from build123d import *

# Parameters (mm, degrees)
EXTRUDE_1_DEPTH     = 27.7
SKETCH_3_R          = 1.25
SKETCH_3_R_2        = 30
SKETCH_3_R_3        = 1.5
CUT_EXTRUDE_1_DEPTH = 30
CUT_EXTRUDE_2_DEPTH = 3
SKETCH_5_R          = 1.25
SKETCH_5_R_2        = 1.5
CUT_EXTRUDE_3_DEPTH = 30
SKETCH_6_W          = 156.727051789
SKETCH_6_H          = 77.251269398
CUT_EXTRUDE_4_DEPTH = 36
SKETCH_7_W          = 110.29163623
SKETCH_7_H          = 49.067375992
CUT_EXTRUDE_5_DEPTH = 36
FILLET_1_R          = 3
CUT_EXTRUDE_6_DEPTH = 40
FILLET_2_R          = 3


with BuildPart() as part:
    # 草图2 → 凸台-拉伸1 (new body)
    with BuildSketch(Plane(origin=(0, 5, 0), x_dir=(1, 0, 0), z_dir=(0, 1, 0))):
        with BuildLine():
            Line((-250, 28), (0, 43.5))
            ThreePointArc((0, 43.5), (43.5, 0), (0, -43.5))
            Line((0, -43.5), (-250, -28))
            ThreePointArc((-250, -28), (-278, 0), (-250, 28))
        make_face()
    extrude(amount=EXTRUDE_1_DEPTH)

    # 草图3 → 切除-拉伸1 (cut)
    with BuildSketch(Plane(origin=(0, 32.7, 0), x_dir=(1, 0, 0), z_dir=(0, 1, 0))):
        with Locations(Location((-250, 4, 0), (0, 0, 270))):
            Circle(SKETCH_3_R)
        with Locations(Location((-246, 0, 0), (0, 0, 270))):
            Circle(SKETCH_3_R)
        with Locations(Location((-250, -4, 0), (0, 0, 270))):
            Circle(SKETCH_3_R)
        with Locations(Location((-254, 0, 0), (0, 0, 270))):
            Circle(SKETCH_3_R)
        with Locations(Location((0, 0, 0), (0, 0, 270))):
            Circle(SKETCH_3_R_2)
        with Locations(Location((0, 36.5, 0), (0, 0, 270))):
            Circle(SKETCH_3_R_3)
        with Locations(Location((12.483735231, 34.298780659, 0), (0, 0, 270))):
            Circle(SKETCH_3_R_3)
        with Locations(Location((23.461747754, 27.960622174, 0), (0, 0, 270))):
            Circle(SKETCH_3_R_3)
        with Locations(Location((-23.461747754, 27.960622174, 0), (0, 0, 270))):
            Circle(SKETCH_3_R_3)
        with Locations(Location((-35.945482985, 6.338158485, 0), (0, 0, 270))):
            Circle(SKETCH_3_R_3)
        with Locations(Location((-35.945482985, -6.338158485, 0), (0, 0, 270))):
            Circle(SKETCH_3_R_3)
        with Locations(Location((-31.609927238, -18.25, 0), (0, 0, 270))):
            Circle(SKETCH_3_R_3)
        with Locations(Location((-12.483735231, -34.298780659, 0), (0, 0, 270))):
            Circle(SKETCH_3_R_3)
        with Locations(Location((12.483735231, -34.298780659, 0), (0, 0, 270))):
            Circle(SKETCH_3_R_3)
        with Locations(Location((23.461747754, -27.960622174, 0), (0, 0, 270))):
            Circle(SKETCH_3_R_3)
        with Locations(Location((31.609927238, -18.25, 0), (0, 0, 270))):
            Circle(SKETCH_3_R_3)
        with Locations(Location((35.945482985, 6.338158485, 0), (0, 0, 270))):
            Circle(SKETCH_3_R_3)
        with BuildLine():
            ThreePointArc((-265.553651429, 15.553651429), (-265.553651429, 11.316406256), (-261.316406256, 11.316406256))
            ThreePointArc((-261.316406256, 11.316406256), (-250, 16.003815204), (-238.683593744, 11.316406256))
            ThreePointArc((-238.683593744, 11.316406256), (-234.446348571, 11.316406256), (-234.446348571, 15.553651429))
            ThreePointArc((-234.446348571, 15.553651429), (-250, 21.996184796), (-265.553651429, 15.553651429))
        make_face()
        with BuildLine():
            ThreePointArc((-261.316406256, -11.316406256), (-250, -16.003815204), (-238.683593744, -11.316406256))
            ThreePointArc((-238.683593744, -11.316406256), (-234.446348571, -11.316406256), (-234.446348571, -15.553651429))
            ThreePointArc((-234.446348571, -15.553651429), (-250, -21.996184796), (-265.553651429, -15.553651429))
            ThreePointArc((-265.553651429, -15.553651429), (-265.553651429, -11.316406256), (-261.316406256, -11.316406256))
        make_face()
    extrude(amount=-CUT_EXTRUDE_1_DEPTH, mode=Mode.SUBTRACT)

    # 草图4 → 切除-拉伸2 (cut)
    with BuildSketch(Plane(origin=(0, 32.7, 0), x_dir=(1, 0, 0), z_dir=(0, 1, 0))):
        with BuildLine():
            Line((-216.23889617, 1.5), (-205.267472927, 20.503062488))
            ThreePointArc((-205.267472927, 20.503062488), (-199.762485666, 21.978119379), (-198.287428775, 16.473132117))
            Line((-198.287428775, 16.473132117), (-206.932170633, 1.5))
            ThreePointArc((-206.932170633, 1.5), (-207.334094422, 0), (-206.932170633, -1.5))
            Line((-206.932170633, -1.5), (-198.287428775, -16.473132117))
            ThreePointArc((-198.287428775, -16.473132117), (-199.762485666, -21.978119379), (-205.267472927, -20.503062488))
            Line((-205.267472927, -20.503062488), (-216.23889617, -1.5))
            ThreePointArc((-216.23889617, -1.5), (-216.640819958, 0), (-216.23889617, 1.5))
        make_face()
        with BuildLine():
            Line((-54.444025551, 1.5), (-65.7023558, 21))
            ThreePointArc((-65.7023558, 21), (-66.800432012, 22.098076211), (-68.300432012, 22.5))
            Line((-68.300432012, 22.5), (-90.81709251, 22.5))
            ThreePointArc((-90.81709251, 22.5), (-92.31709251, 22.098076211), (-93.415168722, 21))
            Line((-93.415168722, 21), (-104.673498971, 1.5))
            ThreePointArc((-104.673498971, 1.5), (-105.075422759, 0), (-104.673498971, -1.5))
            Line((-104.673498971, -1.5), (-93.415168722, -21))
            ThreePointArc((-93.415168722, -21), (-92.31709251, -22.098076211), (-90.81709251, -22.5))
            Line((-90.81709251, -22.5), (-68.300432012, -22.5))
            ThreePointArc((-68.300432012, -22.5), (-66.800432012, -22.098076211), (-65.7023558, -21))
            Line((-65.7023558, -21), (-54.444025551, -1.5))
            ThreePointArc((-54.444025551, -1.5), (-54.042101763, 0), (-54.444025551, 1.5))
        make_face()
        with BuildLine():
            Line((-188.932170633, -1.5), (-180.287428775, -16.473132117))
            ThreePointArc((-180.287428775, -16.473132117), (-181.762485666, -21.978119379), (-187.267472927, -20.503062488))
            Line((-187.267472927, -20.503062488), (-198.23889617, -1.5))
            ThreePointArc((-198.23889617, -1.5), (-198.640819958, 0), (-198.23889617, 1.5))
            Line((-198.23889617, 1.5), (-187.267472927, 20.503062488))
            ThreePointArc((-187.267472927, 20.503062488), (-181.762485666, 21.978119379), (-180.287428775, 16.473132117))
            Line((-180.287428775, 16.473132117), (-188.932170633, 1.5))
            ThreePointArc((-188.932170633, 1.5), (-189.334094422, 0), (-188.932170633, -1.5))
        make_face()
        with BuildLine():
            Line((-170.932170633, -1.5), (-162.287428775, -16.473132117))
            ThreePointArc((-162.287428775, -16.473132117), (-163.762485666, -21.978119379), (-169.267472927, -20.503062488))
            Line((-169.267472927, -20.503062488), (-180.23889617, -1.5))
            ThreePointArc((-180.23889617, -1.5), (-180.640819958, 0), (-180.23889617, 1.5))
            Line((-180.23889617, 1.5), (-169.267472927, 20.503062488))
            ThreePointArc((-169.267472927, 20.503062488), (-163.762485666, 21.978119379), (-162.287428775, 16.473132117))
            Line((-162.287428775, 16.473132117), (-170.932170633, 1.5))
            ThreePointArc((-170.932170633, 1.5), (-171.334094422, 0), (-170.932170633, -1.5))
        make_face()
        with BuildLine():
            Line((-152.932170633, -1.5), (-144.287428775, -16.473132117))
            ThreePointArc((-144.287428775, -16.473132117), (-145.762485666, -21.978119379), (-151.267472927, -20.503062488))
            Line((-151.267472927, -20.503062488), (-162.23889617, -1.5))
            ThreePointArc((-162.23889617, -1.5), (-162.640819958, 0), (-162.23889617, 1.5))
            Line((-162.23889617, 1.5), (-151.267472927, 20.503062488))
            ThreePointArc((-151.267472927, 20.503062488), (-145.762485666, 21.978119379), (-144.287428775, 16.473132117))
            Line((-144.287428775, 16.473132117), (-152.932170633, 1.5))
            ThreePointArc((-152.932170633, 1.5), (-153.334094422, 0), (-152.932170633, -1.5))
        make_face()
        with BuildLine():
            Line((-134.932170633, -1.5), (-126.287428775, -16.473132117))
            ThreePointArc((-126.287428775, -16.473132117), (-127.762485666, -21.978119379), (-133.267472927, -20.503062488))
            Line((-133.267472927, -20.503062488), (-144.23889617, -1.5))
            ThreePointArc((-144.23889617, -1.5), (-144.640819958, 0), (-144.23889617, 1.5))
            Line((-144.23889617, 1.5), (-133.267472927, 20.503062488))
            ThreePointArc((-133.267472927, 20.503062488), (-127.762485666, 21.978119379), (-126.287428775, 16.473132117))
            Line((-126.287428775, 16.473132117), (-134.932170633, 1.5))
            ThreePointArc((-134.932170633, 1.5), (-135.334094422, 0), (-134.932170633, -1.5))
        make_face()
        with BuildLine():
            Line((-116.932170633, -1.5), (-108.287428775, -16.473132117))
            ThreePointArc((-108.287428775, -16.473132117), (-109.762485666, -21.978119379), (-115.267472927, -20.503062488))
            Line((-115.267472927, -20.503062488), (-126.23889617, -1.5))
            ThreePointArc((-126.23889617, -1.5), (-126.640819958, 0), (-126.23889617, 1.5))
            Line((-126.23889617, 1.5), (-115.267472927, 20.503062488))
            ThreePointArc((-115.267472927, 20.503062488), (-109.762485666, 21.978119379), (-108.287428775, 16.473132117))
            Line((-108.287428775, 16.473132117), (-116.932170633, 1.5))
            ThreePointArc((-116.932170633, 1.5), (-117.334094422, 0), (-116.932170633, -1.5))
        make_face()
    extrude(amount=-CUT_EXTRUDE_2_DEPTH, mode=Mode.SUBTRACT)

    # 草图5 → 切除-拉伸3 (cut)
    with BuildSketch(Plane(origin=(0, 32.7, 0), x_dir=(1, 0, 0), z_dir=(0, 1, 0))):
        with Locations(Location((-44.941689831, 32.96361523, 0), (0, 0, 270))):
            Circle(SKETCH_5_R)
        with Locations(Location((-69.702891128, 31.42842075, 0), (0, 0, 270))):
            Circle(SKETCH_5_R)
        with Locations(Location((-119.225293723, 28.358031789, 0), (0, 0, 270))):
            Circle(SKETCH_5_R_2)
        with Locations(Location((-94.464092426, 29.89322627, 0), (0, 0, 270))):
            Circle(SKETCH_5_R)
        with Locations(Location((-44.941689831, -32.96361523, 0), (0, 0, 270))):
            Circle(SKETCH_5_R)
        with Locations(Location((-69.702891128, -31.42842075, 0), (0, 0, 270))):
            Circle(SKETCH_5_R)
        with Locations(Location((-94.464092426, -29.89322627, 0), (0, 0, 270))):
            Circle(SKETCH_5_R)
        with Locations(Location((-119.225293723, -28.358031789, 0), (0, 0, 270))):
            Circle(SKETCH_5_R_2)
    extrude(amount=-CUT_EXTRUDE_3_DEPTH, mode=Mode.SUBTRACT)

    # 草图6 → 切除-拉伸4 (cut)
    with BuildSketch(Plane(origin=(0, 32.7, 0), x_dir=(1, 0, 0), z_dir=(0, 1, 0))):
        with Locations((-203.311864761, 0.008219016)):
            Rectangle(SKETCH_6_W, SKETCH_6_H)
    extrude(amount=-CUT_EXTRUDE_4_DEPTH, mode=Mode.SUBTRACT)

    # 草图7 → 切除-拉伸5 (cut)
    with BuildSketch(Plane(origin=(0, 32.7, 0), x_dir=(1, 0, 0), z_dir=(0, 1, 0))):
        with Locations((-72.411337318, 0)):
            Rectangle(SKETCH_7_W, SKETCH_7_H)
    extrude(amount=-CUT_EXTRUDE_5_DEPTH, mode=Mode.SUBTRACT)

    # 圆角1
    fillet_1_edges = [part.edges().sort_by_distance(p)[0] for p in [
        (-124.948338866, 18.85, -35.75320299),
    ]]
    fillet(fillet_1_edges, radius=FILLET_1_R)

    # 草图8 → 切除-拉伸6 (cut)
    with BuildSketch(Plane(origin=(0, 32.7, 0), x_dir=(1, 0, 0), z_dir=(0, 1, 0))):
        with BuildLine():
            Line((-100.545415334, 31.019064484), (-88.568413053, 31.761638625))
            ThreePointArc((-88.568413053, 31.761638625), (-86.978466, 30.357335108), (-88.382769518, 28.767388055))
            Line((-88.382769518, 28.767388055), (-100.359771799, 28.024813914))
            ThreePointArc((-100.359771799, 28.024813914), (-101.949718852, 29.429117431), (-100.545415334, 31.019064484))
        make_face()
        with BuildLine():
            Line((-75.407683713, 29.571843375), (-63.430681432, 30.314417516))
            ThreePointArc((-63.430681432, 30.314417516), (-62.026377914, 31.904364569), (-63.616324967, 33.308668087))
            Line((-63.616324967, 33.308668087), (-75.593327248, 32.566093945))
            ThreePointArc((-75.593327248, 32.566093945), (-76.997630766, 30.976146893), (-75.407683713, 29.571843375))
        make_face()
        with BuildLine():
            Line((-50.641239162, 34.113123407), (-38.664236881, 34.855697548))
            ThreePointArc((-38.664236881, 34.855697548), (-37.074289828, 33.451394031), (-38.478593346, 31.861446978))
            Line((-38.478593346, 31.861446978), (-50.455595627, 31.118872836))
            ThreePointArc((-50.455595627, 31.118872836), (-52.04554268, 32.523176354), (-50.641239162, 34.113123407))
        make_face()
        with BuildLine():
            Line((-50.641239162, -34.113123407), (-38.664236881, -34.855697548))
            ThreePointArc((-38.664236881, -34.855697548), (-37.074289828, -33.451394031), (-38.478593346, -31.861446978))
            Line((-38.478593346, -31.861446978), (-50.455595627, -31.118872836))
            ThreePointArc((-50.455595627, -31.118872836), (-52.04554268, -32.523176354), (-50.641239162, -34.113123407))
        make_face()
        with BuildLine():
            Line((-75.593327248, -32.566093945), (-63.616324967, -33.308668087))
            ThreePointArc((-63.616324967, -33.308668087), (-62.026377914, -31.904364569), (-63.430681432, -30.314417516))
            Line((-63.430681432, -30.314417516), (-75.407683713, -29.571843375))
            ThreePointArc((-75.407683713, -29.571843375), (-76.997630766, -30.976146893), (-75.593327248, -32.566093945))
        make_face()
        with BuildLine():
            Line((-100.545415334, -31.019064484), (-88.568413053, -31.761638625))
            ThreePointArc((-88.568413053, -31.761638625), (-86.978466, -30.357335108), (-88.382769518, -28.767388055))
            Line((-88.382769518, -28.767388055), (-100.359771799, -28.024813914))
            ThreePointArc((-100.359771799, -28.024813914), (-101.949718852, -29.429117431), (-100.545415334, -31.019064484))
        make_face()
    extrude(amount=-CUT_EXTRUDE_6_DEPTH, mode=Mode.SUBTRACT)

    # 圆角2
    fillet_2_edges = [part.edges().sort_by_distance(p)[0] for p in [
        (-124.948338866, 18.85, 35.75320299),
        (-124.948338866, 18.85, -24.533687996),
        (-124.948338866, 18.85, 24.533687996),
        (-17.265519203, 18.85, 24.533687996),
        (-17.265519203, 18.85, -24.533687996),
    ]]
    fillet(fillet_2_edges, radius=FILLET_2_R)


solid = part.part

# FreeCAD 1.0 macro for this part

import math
import FreeCAD as App
import Part
import Sketcher
from FreeCAD import Vector
Q = App.Units.Quantity


def edges_at(feature, points):
    """Names of the edges that pass closest to the given points."""
    edges = feature.Shape.Edges
    near = lambda p: min(range(len(edges)), key=lambda i: edges[i].distToShape(Part.Vertex(*p))[0])
    return sorted({f"Edge{near(p) + 1}" for p in points})


def add_polygon(sketch, points):
    """Adds a closed chain of lines whose ends are joined by coincident constraints."""
    first, n = sketch.GeometryCount, len(points)
    for a, b in zip(points, points[1:] + points[:1]):
        sketch.addGeometry(Part.LineSegment(App.Vector(*a, 0), App.Vector(*b, 0)), False)
    for i in range(n):
        sketch.addConstraint(Sketcher.Constraint("Coincident", first + i, 2, first + (i + 1) % n, 1))

doc = App.newDocument("Part")
body = doc.addObject("PartDesign::Body", "Body")

# Sketch on XZ plane
sketch1 = doc.addObject("Sketcher::SketchObject", "Sketch")
body.addObject(sketch1)
sketch1.AttachmentSupport = (doc.XZ_Plane, [""])
sketch1.MapMode = "FlatFace"
sketch1.AttachmentOffset = App.Placement(Vector(0, 0, -5), App.Rotation())
sketch1.addGeometry(Part.LineSegment(Vector(0, -44, 0), Vector(-250, -28, 0)), False)
sketch1.addGeometry(Part.ArcOfCircle(Part.Circle(Vector(-250, 0, 0), Vector(0, 0, 1), 28), math.radians(90), math.radians(270)), False)
sketch1.addGeometry(Part.LineSegment(Vector(-250, 28, 0), Vector(0, 44, 0)), False)
sketch1.addGeometry(Part.ArcOfCircle(Part.Circle(Vector(0, 0, 0), Vector(0, 0, 1), 44), math.radians(-90), math.radians(90)), False)
sketch1.addConstraint(Sketcher.Constraint("Coincident", 0, 2, 1, 2))
sketch1.addConstraint(Sketcher.Constraint("Coincident", 1, 1, 2, 1))
sketch1.addConstraint(Sketcher.Constraint("Coincident", 2, 2, 3, 2))
sketch1.addConstraint(Sketcher.Constraint("Coincident", 3, 1, 0, 1))
sketch1.addConstraint(Sketcher.Constraint("Coincident", 3, 3, -1, 1))
sketch1.addConstraint(Sketcher.Constraint("Symmetric", 0, 2, 1, 1, -1))
sketch1.addConstraint(Sketcher.Constraint("PointOnObject", 2, 2, -2))
sketch1.addConstraint(Sketcher.Constraint("PointOnObject", 3, 1, -2))
sketch1.addConstraint(Sketcher.Constraint("Vertical", 1, 3, 0, 2))
sketch1.addConstraint(Sketcher.Constraint("Radius", 1, 28.0))
sketch1.addConstraint(Sketcher.Constraint("Radius", 3, 43.5))
sketch1.addConstraint(Sketcher.Constraint("DistanceX", 1, 3, -1, 1, 250.0))
pad1 = doc.addObject("PartDesign::Pad", "Pad")
body.addObject(pad1)
pad1.Profile = sketch1
pad1.Length = 27.7
pad1.Reversed = True

# Sketch on XZ plane
sketch2 = doc.addObject("Sketcher::SketchObject", "Sketch001")
body.addObject(sketch2)
sketch2.AttachmentSupport = (doc.XZ_Plane, [""])
sketch2.MapMode = "FlatFace"
sketch2.AttachmentOffset = App.Placement(Vector(0, 0, -32.7), App.Rotation())
sketch2.addGeometry(Part.Circle(Vector(-250, -4, 0), Vector(0, 0, 1), 1.2), False)
sketch2.addGeometry(Part.Circle(Vector(-246, 0, 0), Vector(0, 0, 1), 1.2), False)
sketch2.addGeometry(Part.Circle(Vector(-250, 4, 0), Vector(0, 0, 1), 1.2), False)
sketch2.addGeometry(Part.Circle(Vector(-254, 0, 0), Vector(0, 0, 1), 1.2), False)
sketch2.addGeometry(Part.Circle(Vector(0, 0, 0), Vector(0, 0, 1), 30), False)
sketch2.addGeometry(Part.Circle(Vector(0, -36.5, 0), Vector(0, 0, 1), 1.5), False)
sketch2.addGeometry(Part.Circle(Vector(12.5, -34.3, 0), Vector(0, 0, 1), 1.5), False)
sketch2.addGeometry(Part.Circle(Vector(23.5, -28, 0), Vector(0, 0, 1), 1.5), False)
sketch2.addGeometry(Part.Circle(Vector(-23.5, -28, 0), Vector(0, 0, 1), 1.5), False)
sketch2.addGeometry(Part.Circle(Vector(-35.9, -6.3, 0), Vector(0, 0, 1), 1.5), False)
sketch2.addGeometry(Part.Circle(Vector(-35.9, 6.3, 0), Vector(0, 0, 1), 1.5), False)
sketch2.addGeometry(Part.Circle(Vector(-31.6, 18.2, 0), Vector(0, 0, 1), 1.5), False)
sketch2.addGeometry(Part.Circle(Vector(-12.5, 34.3, 0), Vector(0, 0, 1), 1.5), False)
sketch2.addGeometry(Part.Circle(Vector(12.5, 34.3, 0), Vector(0, 0, 1), 1.5), False)
sketch2.addGeometry(Part.Circle(Vector(23.5, 28, 0), Vector(0, 0, 1), 1.5), False)
sketch2.addGeometry(Part.Circle(Vector(31.6, 18.2, 0), Vector(0, 0, 1), 1.5), False)
sketch2.addGeometry(Part.Circle(Vector(35.9, -6.3, 0), Vector(0, 0, 1), 1.5), False)
sketch2.addGeometry(Part.ArcOfCircle(Part.Circle(Vector(-263.4, -13.4, 0), Vector(0, 0, 1), 3), math.radians(45), math.radians(225)), False)
sketch2.addGeometry(Part.ArcOfCircle(Part.Circle(Vector(-250, 0, 0), Vector(0, 0, 1), 16), math.radians(-135), math.radians(-45)), False)
sketch2.addGeometry(Part.ArcOfCircle(Part.Circle(Vector(-236.6, -13.4, 0), Vector(0, 0, 1), 3), math.radians(-45), math.radians(135)), False)
sketch2.addGeometry(Part.ArcOfCircle(Part.Circle(Vector(-250, 0, 0), Vector(0, 0, 1), 22), math.radians(-135), math.radians(-45)), False)
sketch2.addGeometry(Part.ArcOfCircle(Part.Circle(Vector(-250, 0, 0), Vector(0, 0, 1), 16), math.radians(45), math.radians(135)), False)
sketch2.addGeometry(Part.ArcOfCircle(Part.Circle(Vector(-263.4, 13.4, 0), Vector(0, 0, 1), 3), math.radians(135), math.radians(315)), False)
sketch2.addGeometry(Part.ArcOfCircle(Part.Circle(Vector(-250, 0, 0), Vector(0, 0, 1), 22), math.radians(45), math.radians(135)), False)
sketch2.addGeometry(Part.ArcOfCircle(Part.Circle(Vector(-236.6, 13.4, 0), Vector(0, 0, 1), 3), math.radians(-135), math.radians(45)), False)
sketch2.addConstraint(Sketcher.Constraint("Tangent", 17, 1, 18, 1))
sketch2.addConstraint(Sketcher.Constraint("Tangent", 18, 2, 19, 2))
sketch2.addConstraint(Sketcher.Constraint("Tangent", 19, 1, 20, 2))
sketch2.addConstraint(Sketcher.Constraint("Tangent", 20, 1, 17, 2))
sketch2.addConstraint(Sketcher.Constraint("Tangent", 21, 2, 22, 2))
sketch2.addConstraint(Sketcher.Constraint("Tangent", 22, 1, 23, 2))
sketch2.addConstraint(Sketcher.Constraint("Tangent", 23, 1, 24, 2))
sketch2.addConstraint(Sketcher.Constraint("Tangent", 24, 1, 21, 1))
sketch2.addConstraint(Sketcher.Constraint("Coincident", 4, 3, -1, 1))
sketch2.addConstraint(Sketcher.Constraint("Coincident", 20, 3, 18, 3))
sketch2.addConstraint(Sketcher.Constraint("Coincident", 21, 3, 18, 3))
sketch2.addConstraint(Sketcher.Constraint("Coincident", 23, 3, 18, 3))
sketch2.addConstraint(Sketcher.Constraint("Equal", 0, 1))
sketch2.addConstraint(Sketcher.Constraint("Equal", 1, 2))
sketch2.addConstraint(Sketcher.Constraint("Equal", 2, 3))
sketch2.addConstraint(Sketcher.Constraint("Equal", 5, 6))
sketch2.addConstraint(Sketcher.Constraint("Equal", 6, 7))
sketch2.addConstraint(Sketcher.Constraint("Equal", 7, 8))
sketch2.addConstraint(Sketcher.Constraint("Equal", 8, 9))
sketch2.addConstraint(Sketcher.Constraint("Equal", 9, 10))
sketch2.addConstraint(Sketcher.Constraint("Equal", 10, 11))
sketch2.addConstraint(Sketcher.Constraint("Equal", 11, 12))
sketch2.addConstraint(Sketcher.Constraint("Equal", 12, 13))
sketch2.addConstraint(Sketcher.Constraint("Equal", 13, 14))
sketch2.addConstraint(Sketcher.Constraint("Equal", 14, 15))
sketch2.addConstraint(Sketcher.Constraint("Equal", 15, 16))
sketch2.addConstraint(Sketcher.Constraint("Equal", 18, 21))
sketch2.addConstraint(Sketcher.Constraint("Equal", 19, 22))
sketch2.addConstraint(Sketcher.Constraint("Symmetric", 6, 3, 12, 3, -1, 1))
sketch2.addConstraint(Sketcher.Constraint("Symmetric", 8, 3, 14, 3, -1, 1))
sketch2.addConstraint(Sketcher.Constraint("Symmetric", 10, 3, 16, 3, -1, 1))
sketch2.addConstraint(Sketcher.Constraint("Symmetric", 7, 3, 8, 3, -2))
sketch2.addConstraint(Sketcher.Constraint("Symmetric", 12, 3, 13, 3, -2))
sketch2.addConstraint(Sketcher.Constraint("Symmetric", 11, 3, 15, 3, -2))
sketch2.addConstraint(Sketcher.Constraint("Symmetric", 9, 3, 16, 3, -2))
sketch2.addConstraint(Sketcher.Constraint("Symmetric", 0, 3, 2, 3, -1))
sketch2.addConstraint(Sketcher.Constraint("Symmetric", 17, 3, 22, 3, -1))
sketch2.addConstraint(Sketcher.Constraint("PointOnObject", 1, 3, -1))
sketch2.addConstraint(Sketcher.Constraint("PointOnObject", 3, 3, -1))
sketch2.addConstraint(Sketcher.Constraint("PointOnObject", 5, 3, -2))
sketch2.addConstraint(Sketcher.Constraint("Horizontal", 17, 3, 19, 3))
sketch2.addConstraint(Sketcher.Constraint("Horizontal", 22, 3, 24, 3))
sketch2.addConstraint(Sketcher.Constraint("Vertical", 2, 3, 18, 3))
sketch2.addConstraint(Sketcher.Constraint("Diameter", 4, 60.0))
sketch2.addConstraint(Sketcher.Constraint("Diameter", 5, 3.0))
sketch2.addConstraint(Sketcher.Constraint("Diameter", 0, 2.5))
sketch2.addConstraint(Sketcher.Constraint("DistanceX", 0, 3, -1, 1, 250.0))
sketch2.addConstraint(Sketcher.Constraint("DistanceY", 0, 3, -1, 1, 4.0))
sketch2.addConstraint(Sketcher.Constraint("DistanceX", 1, 3, -1, 1, 246.0))
sketch2.addConstraint(Sketcher.Constraint("DistanceX", 3, 3, -1, 1, 254.0))
sketch2.addConstraint(Sketcher.Constraint("DistanceY", 5, 3, -1, 1, 36.5))
sketch2.addConstraint(Sketcher.Constraint("DistanceY", -1, 1, 11, 3, 18.25))
sketch2.addConstraint(Sketcher.Constraint("Radius", 17, 2.996185))
sketch2.addConstraint(Sketcher.Constraint("Radius", 18, 16.003815))
sketch2.addConstraint(Sketcher.Constraint("DistanceY", 6, 3, -1, 1, 34.298781))
sketch2.addConstraint(Sketcher.Constraint("DistanceY", 9, 3, -1, 1, 6.338158))
sketch2.addConstraint(Sketcher.Constraint("DistanceX", 17, 3, -1, 1, 263.435029))
sketch2.addConstraint(Sketcher.Constraint("DistanceY", 6, 3, 7, 3, 6.338158))
sketch2.addConstraint(Sketcher.Constraint("DistanceX", 9, 3, 6, 3, 48.429218))
sketch2.addConstraint(Sketcher.Constraint("DistanceX", 9, 3, 7, 3, 59.407231))
sketch2.addConstraint(Sketcher.Constraint("DistanceX", 11, 3, 8, 3, 8.148179))
sketch2.addConstraint(Sketcher.Constraint("DistanceX", 12, 3, 13, 3, 24.96747))
pocket1 = doc.addObject("PartDesign::Pocket", "Pocket")
body.addObject(pocket1)
pocket1.Profile = sketch2
pocket1.Length = 30
pocket1.Reversed = True

# Sketch on XZ plane
sketch3 = doc.addObject("Sketcher::SketchObject", "Sketch002")
body.addObject(sketch3)
sketch3.AttachmentSupport = (doc.XZ_Plane, [""])
sketch3.MapMode = "FlatFace"
sketch3.AttachmentOffset = App.Placement(Vector(0, 0, -32.7), App.Rotation())
sketch3.addGeometry(Part.LineSegment(Vector(-205.3, -20.5, 0), Vector(-216.2, -1.5, 0)), False)
sketch3.addGeometry(Part.ArcOfCircle(Part.Circle(Vector(-213.6, 0, 0), Vector(0, 0, 1), 3), math.radians(150), math.radians(210)), False)
sketch3.addGeometry(Part.LineSegment(Vector(-216.2, 1.5, 0), Vector(-205.3, 20.5, 0)), False)
sketch3.addGeometry(Part.ArcOfCircle(Part.Circle(Vector(-201.8, 18.5, 0), Vector(0, 0, 1), 4), math.radians(-30), math.radians(150)), False)
sketch3.addGeometry(Part.LineSegment(Vector(-198.3, 16.5, 0), Vector(-206.9, 1.5, 0)), False)
sketch3.addGeometry(Part.ArcOfCircle(Part.Circle(Vector(-204.3, 0, 0), Vector(0, 0, 1), 3), math.radians(150), math.radians(210)), False)
sketch3.addGeometry(Part.LineSegment(Vector(-206.9, -1.5, 0), Vector(-198.3, -16.5, 0)), False)
sketch3.addGeometry(Part.ArcOfCircle(Part.Circle(Vector(-201.8, -18.5, 0), Vector(0, 0, 1), 4), math.radians(-150), math.radians(30)), False)
sketch3.addGeometry(Part.LineSegment(Vector(-54.4, -1.5, 0), Vector(-65.7, -21, 0)), False)
sketch3.addGeometry(Part.ArcOfCircle(Part.Circle(Vector(-68.3, -19.5, 0), Vector(0, 0, 1), 3), math.radians(-90), math.radians(-30)), False)
sketch3.addGeometry(Part.LineSegment(Vector(-68.3, -22.5, 0), Vector(-90.8, -22.5, 0)), False)
sketch3.addGeometry(Part.ArcOfCircle(Part.Circle(Vector(-90.8, -19.5, 0), Vector(0, 0, 1), 3), math.radians(-150), math.radians(-90)), False)
sketch3.addGeometry(Part.LineSegment(Vector(-93.4, -21, 0), Vector(-104.7, -1.5, 0)), False)
sketch3.addGeometry(Part.ArcOfCircle(Part.Circle(Vector(-102.1, 0, 0), Vector(0, 0, 1), 3), math.radians(150), math.radians(210)), False)
sketch3.addGeometry(Part.LineSegment(Vector(-104.7, 1.5, 0), Vector(-93.4, 21, 0)), False)
sketch3.addGeometry(Part.ArcOfCircle(Part.Circle(Vector(-90.8, 19.5, 0), Vector(0, 0, 1), 3), math.radians(90), math.radians(150)), False)
sketch3.addGeometry(Part.LineSegment(Vector(-90.8, 22.5, 0), Vector(-68.3, 22.5, 0)), False)
sketch3.addGeometry(Part.ArcOfCircle(Part.Circle(Vector(-68.3, 19.5, 0), Vector(0, 0, 1), 3), math.radians(30), math.radians(90)), False)
sketch3.addGeometry(Part.LineSegment(Vector(-65.7, 21, 0), Vector(-54.4, 1.5, 0)), False)
sketch3.addGeometry(Part.ArcOfCircle(Part.Circle(Vector(-57, 0, 0), Vector(0, 0, 1), 3), math.radians(-30), math.radians(30)), False)
sketch3.addGeometry(Part.LineSegment(Vector(-180.3, 16.5, 0), Vector(-188.9, 1.5, 0)), False)
sketch3.addGeometry(Part.ArcOfCircle(Part.Circle(Vector(-186.3, 0, 0), Vector(0, 0, 1), 3), math.radians(150), math.radians(210)), False)
sketch3.addGeometry(Part.LineSegment(Vector(-188.9, -1.5, 0), Vector(-180.3, -16.5, 0)), False)
sketch3.addGeometry(Part.ArcOfCircle(Part.Circle(Vector(-183.8, -18.5, 0), Vector(0, 0, 1), 4), math.radians(-150), math.radians(30)), False)
sketch3.addGeometry(Part.LineSegment(Vector(-187.3, -20.5, 0), Vector(-198.2, -1.5, 0)), False)
sketch3.addGeometry(Part.ArcOfCircle(Part.Circle(Vector(-195.6, 0, 0), Vector(0, 0, 1), 3), math.radians(150), math.radians(210)), False)
sketch3.addGeometry(Part.LineSegment(Vector(-198.2, 1.5, 0), Vector(-187.3, 20.5, 0)), False)
sketch3.addGeometry(Part.ArcOfCircle(Part.Circle(Vector(-183.8, 18.5, 0), Vector(0, 0, 1), 4), math.radians(-30), math.radians(150)), False)
sketch3.addGeometry(Part.LineSegment(Vector(-162.3, 16.5, 0), Vector(-170.9, 1.5, 0)), False)
sketch3.addGeometry(Part.ArcOfCircle(Part.Circle(Vector(-168.3, 0, 0), Vector(0, 0, 1), 3), math.radians(150), math.radians(210)), False)
sketch3.addGeometry(Part.LineSegment(Vector(-170.9, -1.5, 0), Vector(-162.3, -16.5, 0)), False)
sketch3.addGeometry(Part.ArcOfCircle(Part.Circle(Vector(-165.8, -18.5, 0), Vector(0, 0, 1), 4), math.radians(-150), math.radians(30)), False)
sketch3.addGeometry(Part.LineSegment(Vector(-169.3, -20.5, 0), Vector(-180.2, -1.5, 0)), False)
sketch3.addGeometry(Part.ArcOfCircle(Part.Circle(Vector(-177.6, 0, 0), Vector(0, 0, 1), 3), math.radians(150), math.radians(210)), False)
sketch3.addGeometry(Part.LineSegment(Vector(-180.2, 1.5, 0), Vector(-169.3, 20.5, 0)), False)
sketch3.addGeometry(Part.ArcOfCircle(Part.Circle(Vector(-165.8, 18.5, 0), Vector(0, 0, 1), 4), math.radians(-30), math.radians(150)), False)
sketch3.addGeometry(Part.LineSegment(Vector(-144.3, 16.5, 0), Vector(-152.9, 1.5, 0)), False)
sketch3.addGeometry(Part.ArcOfCircle(Part.Circle(Vector(-150.3, 0, 0), Vector(0, 0, 1), 3), math.radians(150), math.radians(210)), False)
sketch3.addGeometry(Part.LineSegment(Vector(-152.9, -1.5, 0), Vector(-144.3, -16.5, 0)), False)
sketch3.addGeometry(Part.ArcOfCircle(Part.Circle(Vector(-147.8, -18.5, 0), Vector(0, 0, 1), 4), math.radians(-150), math.radians(30)), False)
sketch3.addGeometry(Part.LineSegment(Vector(-151.3, -20.5, 0), Vector(-162.2, -1.5, 0)), False)
sketch3.addGeometry(Part.ArcOfCircle(Part.Circle(Vector(-159.6, 0, 0), Vector(0, 0, 1), 3), math.radians(150), math.radians(210)), False)
sketch3.addGeometry(Part.LineSegment(Vector(-162.2, 1.5, 0), Vector(-151.3, 20.5, 0)), False)
sketch3.addGeometry(Part.ArcOfCircle(Part.Circle(Vector(-147.8, 18.5, 0), Vector(0, 0, 1), 4), math.radians(-30), math.radians(150)), False)
sketch3.addGeometry(Part.LineSegment(Vector(-126.3, 16.5, 0), Vector(-134.9, 1.5, 0)), False)
sketch3.addGeometry(Part.ArcOfCircle(Part.Circle(Vector(-132.3, 0, 0), Vector(0, 0, 1), 3), math.radians(150), math.radians(210)), False)
sketch3.addGeometry(Part.LineSegment(Vector(-134.9, -1.5, 0), Vector(-126.3, -16.5, 0)), False)
sketch3.addGeometry(Part.ArcOfCircle(Part.Circle(Vector(-129.8, -18.5, 0), Vector(0, 0, 1), 4), math.radians(-150), math.radians(30)), False)
sketch3.addGeometry(Part.LineSegment(Vector(-133.3, -20.5, 0), Vector(-144.2, -1.5, 0)), False)
sketch3.addGeometry(Part.ArcOfCircle(Part.Circle(Vector(-141.6, 0, 0), Vector(0, 0, 1), 3), math.radians(150), math.radians(210)), False)
sketch3.addGeometry(Part.LineSegment(Vector(-144.2, 1.5, 0), Vector(-133.3, 20.5, 0)), False)
sketch3.addGeometry(Part.ArcOfCircle(Part.Circle(Vector(-129.8, 18.5, 0), Vector(0, 0, 1), 4), math.radians(-30), math.radians(150)), False)
sketch3.addGeometry(Part.LineSegment(Vector(-108.3, 16.5, 0), Vector(-116.9, 1.5, 0)), False)
sketch3.addGeometry(Part.ArcOfCircle(Part.Circle(Vector(-114.3, 0, 0), Vector(0, 0, 1), 3), math.radians(150), math.radians(210)), False)
sketch3.addGeometry(Part.LineSegment(Vector(-116.9, -1.5, 0), Vector(-108.3, -16.5, 0)), False)
sketch3.addGeometry(Part.ArcOfCircle(Part.Circle(Vector(-111.8, -18.5, 0), Vector(0, 0, 1), 4), math.radians(-150), math.radians(30)), False)
sketch3.addGeometry(Part.LineSegment(Vector(-115.3, -20.5, 0), Vector(-126.2, -1.5, 0)), False)
sketch3.addGeometry(Part.ArcOfCircle(Part.Circle(Vector(-123.6, 0, 0), Vector(0, 0, 1), 3), math.radians(150), math.radians(210)), False)
sketch3.addGeometry(Part.LineSegment(Vector(-126.2, 1.5, 0), Vector(-115.3, 20.5, 0)), False)
sketch3.addGeometry(Part.ArcOfCircle(Part.Circle(Vector(-111.8, 18.5, 0), Vector(0, 0, 1), 4), math.radians(-30), math.radians(150)), False)
sketch3.addConstraint(Sketcher.Constraint("Tangent", 0, 2, 1, 2))
sketch3.addConstraint(Sketcher.Constraint("Tangent", 1, 1, 2, 1))
sketch3.addConstraint(Sketcher.Constraint("Tangent", 2, 2, 3, 2))
sketch3.addConstraint(Sketcher.Constraint("Tangent", 3, 1, 4, 1))
sketch3.addConstraint(Sketcher.Constraint("Tangent", 4, 2, 5, 1))
sketch3.addConstraint(Sketcher.Constraint("Tangent", 5, 2, 6, 1))
sketch3.addConstraint(Sketcher.Constraint("Tangent", 6, 2, 7, 2))
sketch3.addConstraint(Sketcher.Constraint("Tangent", 7, 1, 0, 1))
sketch3.addConstraint(Sketcher.Constraint("Tangent", 8, 2, 9, 2))
sketch3.addConstraint(Sketcher.Constraint("Tangent", 9, 1, 10, 1))
sketch3.addConstraint(Sketcher.Constraint("Tangent", 10, 2, 11, 2))
sketch3.addConstraint(Sketcher.Constraint("Tangent", 11, 1, 12, 1))
sketch3.addConstraint(Sketcher.Constraint("Tangent", 12, 2, 13, 2))
sketch3.addConstraint(Sketcher.Constraint("Tangent", 13, 1, 14, 1))
sketch3.addConstraint(Sketcher.Constraint("Tangent", 14, 2, 15, 2))
sketch3.addConstraint(Sketcher.Constraint("Tangent", 15, 1, 16, 1))
sketch3.addConstraint(Sketcher.Constraint("Tangent", 16, 2, 17, 2))
sketch3.addConstraint(Sketcher.Constraint("Tangent", 17, 1, 18, 1))
sketch3.addConstraint(Sketcher.Constraint("Tangent", 18, 2, 19, 2))
sketch3.addConstraint(Sketcher.Constraint("Tangent", 19, 1, 8, 1))
sketch3.addConstraint(Sketcher.Constraint("Tangent", 20, 2, 21, 1))
sketch3.addConstraint(Sketcher.Constraint("Tangent", 21, 2, 22, 1))
sketch3.addConstraint(Sketcher.Constraint("Tangent", 22, 2, 23, 2))
sketch3.addConstraint(Sketcher.Constraint("Tangent", 23, 1, 24, 1))
sketch3.addConstraint(Sketcher.Constraint("Tangent", 24, 2, 25, 2))
sketch3.addConstraint(Sketcher.Constraint("Tangent", 25, 1, 26, 1))
sketch3.addConstraint(Sketcher.Constraint("Tangent", 26, 2, 27, 2))
sketch3.addConstraint(Sketcher.Constraint("Tangent", 27, 1, 20, 1))
sketch3.addConstraint(Sketcher.Constraint("Tangent", 28, 2, 29, 1))
sketch3.addConstraint(Sketcher.Constraint("Tangent", 29, 2, 30, 1))
sketch3.addConstraint(Sketcher.Constraint("Tangent", 30, 2, 31, 2))
sketch3.addConstraint(Sketcher.Constraint("Tangent", 31, 1, 32, 1))
sketch3.addConstraint(Sketcher.Constraint("Tangent", 32, 2, 33, 2))
sketch3.addConstraint(Sketcher.Constraint("Tangent", 33, 1, 34, 1))
sketch3.addConstraint(Sketcher.Constraint("Tangent", 34, 2, 35, 2))
sketch3.addConstraint(Sketcher.Constraint("Tangent", 35, 1, 28, 1))
sketch3.addConstraint(Sketcher.Constraint("Tangent", 36, 2, 37, 1))
sketch3.addConstraint(Sketcher.Constraint("Tangent", 37, 2, 38, 1))
sketch3.addConstraint(Sketcher.Constraint("Tangent", 38, 2, 39, 2))
sketch3.addConstraint(Sketcher.Constraint("Tangent", 39, 1, 40, 1))
sketch3.addConstraint(Sketcher.Constraint("Tangent", 40, 2, 41, 2))
sketch3.addConstraint(Sketcher.Constraint("Tangent", 41, 1, 42, 1))
sketch3.addConstraint(Sketcher.Constraint("Tangent", 42, 2, 43, 2))
sketch3.addConstraint(Sketcher.Constraint("Tangent", 43, 1, 36, 1))
sketch3.addConstraint(Sketcher.Constraint("Tangent", 44, 2, 45, 1))
sketch3.addConstraint(Sketcher.Constraint("Tangent", 45, 2, 46, 1))
sketch3.addConstraint(Sketcher.Constraint("Tangent", 46, 2, 47, 2))
sketch3.addConstraint(Sketcher.Constraint("Tangent", 47, 1, 48, 1))
sketch3.addConstraint(Sketcher.Constraint("Tangent", 48, 2, 49, 2))
sketch3.addConstraint(Sketcher.Constraint("Tangent", 49, 1, 50, 1))
sketch3.addConstraint(Sketcher.Constraint("Tangent", 50, 2, 51, 2))
sketch3.addConstraint(Sketcher.Constraint("Tangent", 51, 1, 44, 1))
sketch3.addConstraint(Sketcher.Constraint("Tangent", 52, 2, 53, 1))
sketch3.addConstraint(Sketcher.Constraint("Tangent", 53, 2, 54, 1))
sketch3.addConstraint(Sketcher.Constraint("Tangent", 54, 2, 55, 2))
sketch3.addConstraint(Sketcher.Constraint("Tangent", 55, 1, 56, 1))
sketch3.addConstraint(Sketcher.Constraint("Tangent", 56, 2, 57, 2))
sketch3.addConstraint(Sketcher.Constraint("Tangent", 57, 1, 58, 1))
sketch3.addConstraint(Sketcher.Constraint("Tangent", 58, 2, 59, 2))
sketch3.addConstraint(Sketcher.Constraint("Tangent", 59, 1, 52, 1))
sketch3.addConstraint(Sketcher.Constraint("Horizontal", 10))
sketch3.addConstraint(Sketcher.Constraint("Horizontal", 16))
sketch3.addConstraint(Sketcher.Constraint("Equal", 1, 5))
sketch3.addConstraint(Sketcher.Constraint("Equal", 3, 7))
sketch3.addConstraint(Sketcher.Constraint("Equal", 5, 9))
sketch3.addConstraint(Sketcher.Constraint("Equal", 9, 11))
sketch3.addConstraint(Sketcher.Constraint("Equal", 11, 13))
sketch3.addConstraint(Sketcher.Constraint("Equal", 13, 15))
sketch3.addConstraint(Sketcher.Constraint("Equal", 15, 17))
sketch3.addConstraint(Sketcher.Constraint("Equal", 17, 19))
sketch3.addConstraint(Sketcher.Constraint("Equal", 19, 21))
sketch3.addConstraint(Sketcher.Constraint("Equal", 7, 23))
sketch3.addConstraint(Sketcher.Constraint("Equal", 21, 25))
sketch3.addConstraint(Sketcher.Constraint("Equal", 23, 27))
sketch3.addConstraint(Sketcher.Constraint("Equal", 25, 29))
sketch3.addConstraint(Sketcher.Constraint("Equal", 27, 31))
sketch3.addConstraint(Sketcher.Constraint("Equal", 29, 33))
sketch3.addConstraint(Sketcher.Constraint("Equal", 31, 35))
sketch3.addConstraint(Sketcher.Constraint("Equal", 33, 37))
sketch3.addConstraint(Sketcher.Constraint("Equal", 35, 39))
sketch3.addConstraint(Sketcher.Constraint("Equal", 37, 41))
sketch3.addConstraint(Sketcher.Constraint("Equal", 39, 43))
sketch3.addConstraint(Sketcher.Constraint("Equal", 41, 45))
sketch3.addConstraint(Sketcher.Constraint("Equal", 43, 47))
sketch3.addConstraint(Sketcher.Constraint("Equal", 45, 49))
sketch3.addConstraint(Sketcher.Constraint("Equal", 47, 51))
sketch3.addConstraint(Sketcher.Constraint("Equal", 49, 53))
sketch3.addConstraint(Sketcher.Constraint("Equal", 51, 55))
sketch3.addConstraint(Sketcher.Constraint("Equal", 53, 57))
sketch3.addConstraint(Sketcher.Constraint("Equal", 55, 59))
sketch3.addConstraint(Sketcher.Constraint("Symmetric", 3, 3, 7, 3, -1))
sketch3.addConstraint(Sketcher.Constraint("Symmetric", 11, 3, 15, 3, -1))
sketch3.addConstraint(Sketcher.Constraint("Symmetric", 23, 3, 27, 3, -1))
sketch3.addConstraint(Sketcher.Constraint("Symmetric", 31, 3, 35, 3, -1))
sketch3.addConstraint(Sketcher.Constraint("Symmetric", 39, 3, 43, 3, -1))
sketch3.addConstraint(Sketcher.Constraint("Symmetric", 47, 3, 51, 3, -1))
sketch3.addConstraint(Sketcher.Constraint("Symmetric", 55, 3, 59, 3, -1))
sketch3.addConstraint(Sketcher.Constraint("Symmetric", 8, 2, 17, 1, -1))
sketch3.addConstraint(Sketcher.Constraint("PointOnObject", 1, 3, -1))
sketch3.addConstraint(Sketcher.Constraint("PointOnObject", 5, 3, -1))
sketch3.addConstraint(Sketcher.Constraint("PointOnObject", 13, 3, -1))
sketch3.addConstraint(Sketcher.Constraint("PointOnObject", 21, 3, -1))
sketch3.addConstraint(Sketcher.Constraint("PointOnObject", 25, 3, -1))
sketch3.addConstraint(Sketcher.Constraint("PointOnObject", 29, 3, -1))
sketch3.addConstraint(Sketcher.Constraint("PointOnObject", 33, 3, -1))
sketch3.addConstraint(Sketcher.Constraint("PointOnObject", 37, 3, -1))
sketch3.addConstraint(Sketcher.Constraint("PointOnObject", 41, 3, -1))
sketch3.addConstraint(Sketcher.Constraint("PointOnObject", 45, 3, -1))
sketch3.addConstraint(Sketcher.Constraint("PointOnObject", 49, 3, -1))
sketch3.addConstraint(Sketcher.Constraint("PointOnObject", 53, 3, -1))
sketch3.addConstraint(Sketcher.Constraint("PointOnObject", 57, 3, -1))
sketch3.addConstraint(Sketcher.Constraint("Parallel", 2, 4))
sketch3.addConstraint(Sketcher.Constraint("Parallel", 4, 8))
sketch3.addConstraint(Sketcher.Constraint("Parallel", 6, 12))
sketch3.addConstraint(Sketcher.Constraint("Parallel", 14, 20))
sketch3.addConstraint(Sketcher.Constraint("Parallel", 22, 24))
sketch3.addConstraint(Sketcher.Constraint("Parallel", 26, 28))
sketch3.addConstraint(Sketcher.Constraint("Parallel", 30, 32))
sketch3.addConstraint(Sketcher.Constraint("Parallel", 34, 36))
sketch3.addConstraint(Sketcher.Constraint("Parallel", 38, 40))
sketch3.addConstraint(Sketcher.Constraint("Parallel", 42, 44))
sketch3.addConstraint(Sketcher.Constraint("Parallel", 46, 48))
sketch3.addConstraint(Sketcher.Constraint("Parallel", 50, 52))
sketch3.addConstraint(Sketcher.Constraint("Parallel", 54, 56))
sketch3.addConstraint(Sketcher.Constraint("Horizontal", 7, 3, 23, 3))
sketch3.addConstraint(Sketcher.Constraint("Horizontal", 23, 3, 31, 3))
sketch3.addConstraint(Sketcher.Constraint("Horizontal", 31, 3, 39, 3))
sketch3.addConstraint(Sketcher.Constraint("Horizontal", 39, 3, 47, 3))
sketch3.addConstraint(Sketcher.Constraint("Horizontal", 47, 3, 55, 3))
sketch3.addConstraint(Sketcher.Constraint("Radius", 1, 3.0))
sketch3.addConstraint(Sketcher.Constraint("Angle", 0, Q("120 deg")))
sketch3.addConstraint(Sketcher.Constraint("DistanceY", 8, 2, -1, 1, 21.0))
sketch3.addConstraint(Sketcher.Constraint("Radius", 3, 4.02993))
sketch3.addConstraint(Sketcher.Constraint("DistanceX", 10, 2, 10, 1, 22.51666))
sketch3.addConstraint(Sketcher.Constraint("DistanceX", 19, 3, -1, 1, 57.042102))
sketch3.addConstraint(Sketcher.Constraint("DistanceX", 1, 3, -1, 1, 213.64082))
sketch3.addConstraint(Sketcher.Constraint("DistanceX", 3, 3, -1, 1, 201.777451))
sketch3.addConstraint(Sketcher.Constraint("DistanceX", 23, 3, -1, 1, 183.777451))
sketch3.addConstraint(Sketcher.Constraint("DistanceX", 31, 3, -1, 1, 165.777451))
sketch3.addConstraint(Sketcher.Constraint("DistanceX", 39, 3, -1, 1, 147.777451))
sketch3.addConstraint(Sketcher.Constraint("DistanceX", 47, 3, -1, 1, 129.777451))
sketch3.addConstraint(Sketcher.Constraint("DistanceX", 55, 3, -1, 1, 111.777451))
pocket2 = doc.addObject("PartDesign::Pocket", "Pocket001")
body.addObject(pocket2)
pocket2.Profile = sketch3
pocket2.Length = 3
pocket2.Reversed = True

# Sketch on XZ plane
sketch4 = doc.addObject("Sketcher::SketchObject", "Sketch003")
body.addObject(sketch4)
sketch4.AttachmentSupport = (doc.XZ_Plane, [""])
sketch4.MapMode = "FlatFace"
sketch4.AttachmentOffset = App.Placement(Vector(0, 0, -32.7), App.Rotation())
sketch4.addGeometry(Part.Circle(Vector(-44.9, -33, 0), Vector(0, 0, 1), 1.2), False)
sketch4.addGeometry(Part.Circle(Vector(-69.7, -31.4, 0), Vector(0, 0, 1), 1.2), False)
sketch4.addGeometry(Part.Circle(Vector(-119.2, -28.4, 0), Vector(0, 0, 1), 1.5), False)
sketch4.addGeometry(Part.Circle(Vector(-94.5, -29.9, 0), Vector(0, 0, 1), 1.2), False)
sketch4.addGeometry(Part.Circle(Vector(-44.9, 33, 0), Vector(0, 0, 1), 1.2), False)
sketch4.addGeometry(Part.Circle(Vector(-69.7, 31.4, 0), Vector(0, 0, 1), 1.2), False)
sketch4.addGeometry(Part.Circle(Vector(-94.5, 29.9, 0), Vector(0, 0, 1), 1.2), False)
sketch4.addGeometry(Part.Circle(Vector(-119.2, 28.4, 0), Vector(0, 0, 1), 1.5), False)
sketch4.addConstraint(Sketcher.Constraint("Equal", 0, 1))
sketch4.addConstraint(Sketcher.Constraint("Equal", 1, 3))
sketch4.addConstraint(Sketcher.Constraint("Equal", 3, 4))
sketch4.addConstraint(Sketcher.Constraint("Equal", 4, 5))
sketch4.addConstraint(Sketcher.Constraint("Equal", 5, 6))
sketch4.addConstraint(Sketcher.Constraint("Equal", 2, 7))
sketch4.addConstraint(Sketcher.Constraint("Symmetric", 0, 3, 4, 3, -1))
sketch4.addConstraint(Sketcher.Constraint("Symmetric", 1, 3, 5, 3, -1))
sketch4.addConstraint(Sketcher.Constraint("Symmetric", 3, 3, 6, 3, -1))
sketch4.addConstraint(Sketcher.Constraint("Symmetric", 2, 3, 7, 3, -1))
sketch4.addConstraint(Sketcher.Constraint("Diameter", 2, 3.0))
sketch4.addConstraint(Sketcher.Constraint("Diameter", 0, 2.5))
sketch4.addConstraint(Sketcher.Constraint("DistanceX", 1, 3, 0, 3, 24.761201))
sketch4.addConstraint(Sketcher.Constraint("DistanceX", 2, 3, 3, 3, 24.761201))
sketch4.addConstraint(Sketcher.Constraint("DistanceX", 3, 3, 1, 3, 24.761201))
sketch4.addConstraint(Sketcher.Constraint("DistanceX", 0, 3, -1, 1, 44.94169))
sketch4.addConstraint(Sketcher.Constraint("DistanceY", 1, 3, -1, 1, 31.428421))
sketch4.addConstraint(Sketcher.Constraint("DistanceY", 2, 3, -1, 1, 28.358032))
sketch4.addConstraint(Sketcher.Constraint("DistanceY", 0, 3, 3, 3, 3.070389))
sketch4.addConstraint(Sketcher.Constraint("DistanceY", 0, 3, 4, 3, 65.92723))
pocket3 = doc.addObject("PartDesign::Pocket", "Pocket002")
body.addObject(pocket3)
pocket3.Profile = sketch4
pocket3.Length = 30
pocket3.Reversed = True

# Sketch on XZ plane
sketch5 = doc.addObject("Sketcher::SketchObject", "Sketch004")
body.addObject(sketch5)
sketch5.AttachmentSupport = (doc.XZ_Plane, [""])
sketch5.MapMode = "FlatFace"
sketch5.AttachmentOffset = App.Placement(Vector(0, 0, -32.7), App.Rotation())
add_polygon(sketch5, [(-282, -39), (-282, 39), (-125, 39), (-125, -39)])  # lines 0-3
sketch5.addConstraint(Sketcher.Constraint("Vertical", 0))
sketch5.addConstraint(Sketcher.Constraint("Horizontal", 1))
sketch5.addConstraint(Sketcher.Constraint("Vertical", 2))
sketch5.addConstraint(Sketcher.Constraint("Horizontal", 3))
sketch5.addConstraint(Sketcher.Constraint("DistanceX", 1, 1, 1, 2, 156.727052))
sketch5.addConstraint(Sketcher.Constraint("DistanceY", 0, 1, 0, 2, 77.251269))
sketch5.addConstraint(Sketcher.Constraint("DistanceX", 0, 2, -1, 1, 281.675391))
sketch5.addConstraint(Sketcher.Constraint("DistanceY", -1, 1, 0, 2, 38.617416))
pocket4 = doc.addObject("PartDesign::Pocket", "Pocket003")
body.addObject(pocket4)
pocket4.Profile = sketch5
pocket4.Length = 36
pocket4.Reversed = True

# Sketch on XZ plane
sketch6 = doc.addObject("Sketcher::SketchObject", "Sketch005")
body.addObject(sketch6)
sketch6.AttachmentSupport = (doc.XZ_Plane, [""])
sketch6.MapMode = "FlatFace"
sketch6.AttachmentOffset = App.Placement(Vector(0, 0, -32.7), App.Rotation())
add_polygon(sketch6, [(-128, -25), (-128, 25), (-17, 25), (-17, -25)])  # lines 0-3
sketch6.addConstraint(Sketcher.Constraint("Vertical", 0))
sketch6.addConstraint(Sketcher.Constraint("Horizontal", 1))
sketch6.addConstraint(Sketcher.Constraint("Vertical", 2))
sketch6.addConstraint(Sketcher.Constraint("Horizontal", 3))
sketch6.addConstraint(Sketcher.Constraint("DistanceX", 1, 1, 1, 2, 110.291636))
sketch6.addConstraint(Sketcher.Constraint("DistanceY", 0, 1, 0, 2, 49.067376))
sketch6.addConstraint(Sketcher.Constraint("DistanceX", 1, 2, -1, 1, 17.265519))
sketch6.addConstraint(Sketcher.Constraint("DistanceY", -1, 1, 0, 2, 24.533688))
pocket5 = doc.addObject("PartDesign::Pocket", "Pocket004")
body.addObject(pocket5)
pocket5.Profile = sketch6
pocket5.Length = 36
pocket5.Reversed = True
doc.recompute()

fillet = doc.addObject("PartDesign::Fillet", "Fillet")
body.addObject(fillet)
fillet.Base = (pocket5, edges_at(pocket5, [(-124.948, 18.85, -35.753)]))
fillet.Radius = 3

# Sketch on XZ plane
sketch7 = doc.addObject("Sketcher::SketchObject", "Sketch006")
body.addObject(sketch7)
sketch7.AttachmentSupport = (doc.XZ_Plane, [""])
sketch7.MapMode = "FlatFace"
sketch7.AttachmentOffset = App.Placement(Vector(0, 0, -32.7), App.Rotation())
sketch7.addGeometry(Part.LineSegment(Vector(-88.6, -31.8, 0), Vector(-100.5, -31, 0)), False)
sketch7.addGeometry(Part.ArcOfCircle(Part.Circle(Vector(-100.5, -29.5, 0), Vector(0, 0, 1), 1.5), math.radians(86), math.radians(266)), False)
sketch7.addGeometry(Part.LineSegment(Vector(-100.4, -28, 0), Vector(-88.4, -28.8, 0)), False)
sketch7.addGeometry(Part.ArcOfCircle(Part.Circle(Vector(-88.5, -30.3, 0), Vector(0, 0, 1), 1.5), math.radians(-94), math.radians(86)), False)
sketch7.addGeometry(Part.LineSegment(Vector(-75.4, -29.6, 0), Vector(-63.4, -30.3, 0)), False)
sketch7.addGeometry(Part.ArcOfCircle(Part.Circle(Vector(-63.5, -31.8, 0), Vector(0, 0, 1), 1.5), math.radians(-94), math.radians(86)), False)
sketch7.addGeometry(Part.LineSegment(Vector(-63.6, -33.3, 0), Vector(-75.6, -32.6, 0)), False)
sketch7.addGeometry(Part.ArcOfCircle(Part.Circle(Vector(-75.5, -31.1, 0), Vector(0, 0, 1), 1.5), math.radians(86), math.radians(266)), False)
sketch7.addGeometry(Part.LineSegment(Vector(-38.7, -34.9, 0), Vector(-50.6, -34.1, 0)), False)
sketch7.addGeometry(Part.ArcOfCircle(Part.Circle(Vector(-50.5, -32.6, 0), Vector(0, 0, 1), 1.5), math.radians(86), math.radians(266)), False)
sketch7.addGeometry(Part.LineSegment(Vector(-50.5, -31.1, 0), Vector(-38.5, -31.9, 0)), False)
sketch7.addGeometry(Part.ArcOfCircle(Part.Circle(Vector(-38.6, -33.4, 0), Vector(0, 0, 1), 1.5), math.radians(-94), math.radians(86)), False)
sketch7.addGeometry(Part.LineSegment(Vector(-50.6, 34.1, 0), Vector(-38.7, 34.9, 0)), False)
sketch7.addGeometry(Part.ArcOfCircle(Part.Circle(Vector(-38.6, 33.4, 0), Vector(0, 0, 1), 1.5), math.radians(-86), math.radians(94)), False)
sketch7.addGeometry(Part.LineSegment(Vector(-38.5, 31.9, 0), Vector(-50.5, 31.1, 0)), False)
sketch7.addGeometry(Part.ArcOfCircle(Part.Circle(Vector(-50.5, 32.6, 0), Vector(0, 0, 1), 1.5), math.radians(94), math.radians(274)), False)
sketch7.addGeometry(Part.LineSegment(Vector(-75.6, 32.6, 0), Vector(-63.6, 33.3, 0)), False)
sketch7.addGeometry(Part.ArcOfCircle(Part.Circle(Vector(-63.5, 31.8, 0), Vector(0, 0, 1), 1.5), math.radians(-86), math.radians(94)), False)
sketch7.addGeometry(Part.LineSegment(Vector(-63.4, 30.3, 0), Vector(-75.4, 29.6, 0)), False)
sketch7.addGeometry(Part.ArcOfCircle(Part.Circle(Vector(-75.5, 31.1, 0), Vector(0, 0, 1), 1.5), math.radians(94), math.radians(274)), False)
sketch7.addGeometry(Part.LineSegment(Vector(-100.5, 31, 0), Vector(-88.6, 31.8, 0)), False)
sketch7.addGeometry(Part.ArcOfCircle(Part.Circle(Vector(-88.5, 30.3, 0), Vector(0, 0, 1), 1.5), math.radians(-86), math.radians(94)), False)
sketch7.addGeometry(Part.LineSegment(Vector(-88.4, 28.8, 0), Vector(-100.4, 28, 0)), False)
sketch7.addGeometry(Part.ArcOfCircle(Part.Circle(Vector(-100.5, 29.5, 0), Vector(0, 0, 1), 1.5), math.radians(94), math.radians(274)), False)
sketch7.addConstraint(Sketcher.Constraint("Tangent", 0, 2, 1, 2))
sketch7.addConstraint(Sketcher.Constraint("Tangent", 1, 1, 2, 1))
sketch7.addConstraint(Sketcher.Constraint("Tangent", 2, 2, 3, 2))
sketch7.addConstraint(Sketcher.Constraint("Tangent", 3, 1, 0, 1))
sketch7.addConstraint(Sketcher.Constraint("Tangent", 4, 2, 5, 2))
sketch7.addConstraint(Sketcher.Constraint("Tangent", 5, 1, 6, 1))
sketch7.addConstraint(Sketcher.Constraint("Tangent", 6, 2, 7, 2))
sketch7.addConstraint(Sketcher.Constraint("Tangent", 7, 1, 4, 1))
sketch7.addConstraint(Sketcher.Constraint("Tangent", 8, 2, 9, 2))
sketch7.addConstraint(Sketcher.Constraint("Tangent", 9, 1, 10, 1))
sketch7.addConstraint(Sketcher.Constraint("Tangent", 10, 2, 11, 2))
sketch7.addConstraint(Sketcher.Constraint("Tangent", 11, 1, 8, 1))
sketch7.addConstraint(Sketcher.Constraint("Tangent", 12, 2, 13, 2))
sketch7.addConstraint(Sketcher.Constraint("Tangent", 13, 1, 14, 1))
sketch7.addConstraint(Sketcher.Constraint("Tangent", 14, 2, 15, 2))
sketch7.addConstraint(Sketcher.Constraint("Tangent", 15, 1, 12, 1))
sketch7.addConstraint(Sketcher.Constraint("Tangent", 16, 2, 17, 2))
sketch7.addConstraint(Sketcher.Constraint("Tangent", 17, 1, 18, 1))
sketch7.addConstraint(Sketcher.Constraint("Tangent", 18, 2, 19, 2))
sketch7.addConstraint(Sketcher.Constraint("Tangent", 19, 1, 16, 1))
sketch7.addConstraint(Sketcher.Constraint("Tangent", 20, 2, 21, 2))
sketch7.addConstraint(Sketcher.Constraint("Tangent", 21, 1, 22, 1))
sketch7.addConstraint(Sketcher.Constraint("Tangent", 22, 2, 23, 2))
sketch7.addConstraint(Sketcher.Constraint("Tangent", 23, 1, 20, 1))
sketch7.addConstraint(Sketcher.Constraint("Equal", 1, 3))
sketch7.addConstraint(Sketcher.Constraint("Equal", 3, 5))
sketch7.addConstraint(Sketcher.Constraint("Equal", 5, 7))
sketch7.addConstraint(Sketcher.Constraint("Equal", 7, 9))
sketch7.addConstraint(Sketcher.Constraint("Equal", 9, 11))
sketch7.addConstraint(Sketcher.Constraint("Equal", 11, 13))
sketch7.addConstraint(Sketcher.Constraint("Equal", 13, 15))
sketch7.addConstraint(Sketcher.Constraint("Equal", 15, 17))
sketch7.addConstraint(Sketcher.Constraint("Equal", 17, 19))
sketch7.addConstraint(Sketcher.Constraint("Equal", 19, 21))
sketch7.addConstraint(Sketcher.Constraint("Equal", 21, 23))
sketch7.addConstraint(Sketcher.Constraint("Symmetric", 11, 3, 13, 3, -1))
sketch7.addConstraint(Sketcher.Constraint("Symmetric", 9, 3, 15, 3, -1))
sketch7.addConstraint(Sketcher.Constraint("Symmetric", 5, 3, 17, 3, -1))
sketch7.addConstraint(Sketcher.Constraint("Symmetric", 7, 3, 19, 3, -1))
sketch7.addConstraint(Sketcher.Constraint("Symmetric", 3, 3, 21, 3, -1))
sketch7.addConstraint(Sketcher.Constraint("Symmetric", 1, 3, 23, 3, -1))
sketch7.addConstraint(Sketcher.Constraint("Parallel", 2, 4))
sketch7.addConstraint(Sketcher.Constraint("Parallel", 6, 8))
sketch7.addConstraint(Sketcher.Constraint("Equal", 2, 4))
sketch7.addConstraint(Sketcher.Constraint("Equal", 6, 8))
sketch7.addConstraint(Sketcher.Constraint("Radius", 1, 1.5))
sketch7.addConstraint(Sketcher.Constraint("Distance", 0, 12.0))
sketch7.addConstraint(Sketcher.Constraint("DistanceY", 9, 3, -1, 1, 32.615998))
sketch7.addConstraint(Sketcher.Constraint("DistanceY", 3, 3, 1, 1, 2.239699))
sketch7.addConstraint(Sketcher.Constraint("DistanceY", 1, 3, -1, 1, 29.521939))
sketch7.addConstraint(Sketcher.Constraint("DistanceX", 3, 3, -1, 1, 88.475591))
sketch7.addConstraint(Sketcher.Constraint("DistanceY", 7, 3, -1, 1, 31.068969))
sketch7.addConstraint(Sketcher.Constraint("DistanceX", 4, 2, -1, 1, 63.430681))
sketch7.addConstraint(Sketcher.Constraint("DistanceX", 8, 2, -1, 1, 50.641239))
pocket6 = doc.addObject("PartDesign::Pocket", "Pocket005")
body.addObject(pocket6)
pocket6.Profile = sketch7
pocket6.Length = 40
pocket6.Reversed = True
doc.recompute()

fillet2 = doc.addObject("PartDesign::Fillet", "Fillet001")
body.addObject(fillet2)
fillet2.Base = (pocket6, edges_at(pocket6, [
    (-124.948, 18.85, 35.753),
    (-124.948, 18.85, -24.534),
    (-124.948, 18.85, 24.534),
    (-17.266, 18.85, 24.534),
    (-17.266, 18.85, -24.534),
]))
fillet2.Radius = 3

doc.recompute()
